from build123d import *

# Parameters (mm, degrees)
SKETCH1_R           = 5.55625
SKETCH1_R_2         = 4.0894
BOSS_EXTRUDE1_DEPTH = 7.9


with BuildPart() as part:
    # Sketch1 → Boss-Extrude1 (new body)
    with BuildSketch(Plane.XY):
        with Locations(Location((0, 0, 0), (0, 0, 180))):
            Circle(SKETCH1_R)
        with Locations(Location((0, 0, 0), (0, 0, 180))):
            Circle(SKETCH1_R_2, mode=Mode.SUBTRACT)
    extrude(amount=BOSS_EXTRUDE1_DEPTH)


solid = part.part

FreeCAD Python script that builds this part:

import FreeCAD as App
import Part
import Sketcher

V = App.Vector
Q = App.Units.Quantity

doc = App.newDocument("Part")
body = doc.addObject("PartDesign::Body", "Body")

# Sketch on XY plane
sketch1 = doc.addObject("Sketcher::SketchObject", "Sketch")
body.addObject(sketch1)
sketch1.AttachmentSupport = (doc.XY_Plane, [""])
sketch1.MapMode = "FlatFace"
sketch1.addGeometry([
    Part.Circle(V(0, 0, 0), V(0, 0, 1), 5.6),
    Part.Circle(V(0, 0, 0), V(0, 0, 1), 4.1),
], False)
sketch1.addConstraint([
    Sketcher.Constraint("Coincident", 0, 3, -1, 1),
    Sketcher.Constraint("Coincident", 1, 3, -1, 1),
    Sketcher.Constraint("Diameter", 0, Q("0.4375 in")),
    Sketcher.Constraint("Diameter", 1, Q("0.322 in")),
])
pad1 = doc.addObject("PartDesign::Pad", "Pad")
body.addObject(pad1)
pad1.Profile = sketch1
pad1.Length = 7.9

doc.recompute()
